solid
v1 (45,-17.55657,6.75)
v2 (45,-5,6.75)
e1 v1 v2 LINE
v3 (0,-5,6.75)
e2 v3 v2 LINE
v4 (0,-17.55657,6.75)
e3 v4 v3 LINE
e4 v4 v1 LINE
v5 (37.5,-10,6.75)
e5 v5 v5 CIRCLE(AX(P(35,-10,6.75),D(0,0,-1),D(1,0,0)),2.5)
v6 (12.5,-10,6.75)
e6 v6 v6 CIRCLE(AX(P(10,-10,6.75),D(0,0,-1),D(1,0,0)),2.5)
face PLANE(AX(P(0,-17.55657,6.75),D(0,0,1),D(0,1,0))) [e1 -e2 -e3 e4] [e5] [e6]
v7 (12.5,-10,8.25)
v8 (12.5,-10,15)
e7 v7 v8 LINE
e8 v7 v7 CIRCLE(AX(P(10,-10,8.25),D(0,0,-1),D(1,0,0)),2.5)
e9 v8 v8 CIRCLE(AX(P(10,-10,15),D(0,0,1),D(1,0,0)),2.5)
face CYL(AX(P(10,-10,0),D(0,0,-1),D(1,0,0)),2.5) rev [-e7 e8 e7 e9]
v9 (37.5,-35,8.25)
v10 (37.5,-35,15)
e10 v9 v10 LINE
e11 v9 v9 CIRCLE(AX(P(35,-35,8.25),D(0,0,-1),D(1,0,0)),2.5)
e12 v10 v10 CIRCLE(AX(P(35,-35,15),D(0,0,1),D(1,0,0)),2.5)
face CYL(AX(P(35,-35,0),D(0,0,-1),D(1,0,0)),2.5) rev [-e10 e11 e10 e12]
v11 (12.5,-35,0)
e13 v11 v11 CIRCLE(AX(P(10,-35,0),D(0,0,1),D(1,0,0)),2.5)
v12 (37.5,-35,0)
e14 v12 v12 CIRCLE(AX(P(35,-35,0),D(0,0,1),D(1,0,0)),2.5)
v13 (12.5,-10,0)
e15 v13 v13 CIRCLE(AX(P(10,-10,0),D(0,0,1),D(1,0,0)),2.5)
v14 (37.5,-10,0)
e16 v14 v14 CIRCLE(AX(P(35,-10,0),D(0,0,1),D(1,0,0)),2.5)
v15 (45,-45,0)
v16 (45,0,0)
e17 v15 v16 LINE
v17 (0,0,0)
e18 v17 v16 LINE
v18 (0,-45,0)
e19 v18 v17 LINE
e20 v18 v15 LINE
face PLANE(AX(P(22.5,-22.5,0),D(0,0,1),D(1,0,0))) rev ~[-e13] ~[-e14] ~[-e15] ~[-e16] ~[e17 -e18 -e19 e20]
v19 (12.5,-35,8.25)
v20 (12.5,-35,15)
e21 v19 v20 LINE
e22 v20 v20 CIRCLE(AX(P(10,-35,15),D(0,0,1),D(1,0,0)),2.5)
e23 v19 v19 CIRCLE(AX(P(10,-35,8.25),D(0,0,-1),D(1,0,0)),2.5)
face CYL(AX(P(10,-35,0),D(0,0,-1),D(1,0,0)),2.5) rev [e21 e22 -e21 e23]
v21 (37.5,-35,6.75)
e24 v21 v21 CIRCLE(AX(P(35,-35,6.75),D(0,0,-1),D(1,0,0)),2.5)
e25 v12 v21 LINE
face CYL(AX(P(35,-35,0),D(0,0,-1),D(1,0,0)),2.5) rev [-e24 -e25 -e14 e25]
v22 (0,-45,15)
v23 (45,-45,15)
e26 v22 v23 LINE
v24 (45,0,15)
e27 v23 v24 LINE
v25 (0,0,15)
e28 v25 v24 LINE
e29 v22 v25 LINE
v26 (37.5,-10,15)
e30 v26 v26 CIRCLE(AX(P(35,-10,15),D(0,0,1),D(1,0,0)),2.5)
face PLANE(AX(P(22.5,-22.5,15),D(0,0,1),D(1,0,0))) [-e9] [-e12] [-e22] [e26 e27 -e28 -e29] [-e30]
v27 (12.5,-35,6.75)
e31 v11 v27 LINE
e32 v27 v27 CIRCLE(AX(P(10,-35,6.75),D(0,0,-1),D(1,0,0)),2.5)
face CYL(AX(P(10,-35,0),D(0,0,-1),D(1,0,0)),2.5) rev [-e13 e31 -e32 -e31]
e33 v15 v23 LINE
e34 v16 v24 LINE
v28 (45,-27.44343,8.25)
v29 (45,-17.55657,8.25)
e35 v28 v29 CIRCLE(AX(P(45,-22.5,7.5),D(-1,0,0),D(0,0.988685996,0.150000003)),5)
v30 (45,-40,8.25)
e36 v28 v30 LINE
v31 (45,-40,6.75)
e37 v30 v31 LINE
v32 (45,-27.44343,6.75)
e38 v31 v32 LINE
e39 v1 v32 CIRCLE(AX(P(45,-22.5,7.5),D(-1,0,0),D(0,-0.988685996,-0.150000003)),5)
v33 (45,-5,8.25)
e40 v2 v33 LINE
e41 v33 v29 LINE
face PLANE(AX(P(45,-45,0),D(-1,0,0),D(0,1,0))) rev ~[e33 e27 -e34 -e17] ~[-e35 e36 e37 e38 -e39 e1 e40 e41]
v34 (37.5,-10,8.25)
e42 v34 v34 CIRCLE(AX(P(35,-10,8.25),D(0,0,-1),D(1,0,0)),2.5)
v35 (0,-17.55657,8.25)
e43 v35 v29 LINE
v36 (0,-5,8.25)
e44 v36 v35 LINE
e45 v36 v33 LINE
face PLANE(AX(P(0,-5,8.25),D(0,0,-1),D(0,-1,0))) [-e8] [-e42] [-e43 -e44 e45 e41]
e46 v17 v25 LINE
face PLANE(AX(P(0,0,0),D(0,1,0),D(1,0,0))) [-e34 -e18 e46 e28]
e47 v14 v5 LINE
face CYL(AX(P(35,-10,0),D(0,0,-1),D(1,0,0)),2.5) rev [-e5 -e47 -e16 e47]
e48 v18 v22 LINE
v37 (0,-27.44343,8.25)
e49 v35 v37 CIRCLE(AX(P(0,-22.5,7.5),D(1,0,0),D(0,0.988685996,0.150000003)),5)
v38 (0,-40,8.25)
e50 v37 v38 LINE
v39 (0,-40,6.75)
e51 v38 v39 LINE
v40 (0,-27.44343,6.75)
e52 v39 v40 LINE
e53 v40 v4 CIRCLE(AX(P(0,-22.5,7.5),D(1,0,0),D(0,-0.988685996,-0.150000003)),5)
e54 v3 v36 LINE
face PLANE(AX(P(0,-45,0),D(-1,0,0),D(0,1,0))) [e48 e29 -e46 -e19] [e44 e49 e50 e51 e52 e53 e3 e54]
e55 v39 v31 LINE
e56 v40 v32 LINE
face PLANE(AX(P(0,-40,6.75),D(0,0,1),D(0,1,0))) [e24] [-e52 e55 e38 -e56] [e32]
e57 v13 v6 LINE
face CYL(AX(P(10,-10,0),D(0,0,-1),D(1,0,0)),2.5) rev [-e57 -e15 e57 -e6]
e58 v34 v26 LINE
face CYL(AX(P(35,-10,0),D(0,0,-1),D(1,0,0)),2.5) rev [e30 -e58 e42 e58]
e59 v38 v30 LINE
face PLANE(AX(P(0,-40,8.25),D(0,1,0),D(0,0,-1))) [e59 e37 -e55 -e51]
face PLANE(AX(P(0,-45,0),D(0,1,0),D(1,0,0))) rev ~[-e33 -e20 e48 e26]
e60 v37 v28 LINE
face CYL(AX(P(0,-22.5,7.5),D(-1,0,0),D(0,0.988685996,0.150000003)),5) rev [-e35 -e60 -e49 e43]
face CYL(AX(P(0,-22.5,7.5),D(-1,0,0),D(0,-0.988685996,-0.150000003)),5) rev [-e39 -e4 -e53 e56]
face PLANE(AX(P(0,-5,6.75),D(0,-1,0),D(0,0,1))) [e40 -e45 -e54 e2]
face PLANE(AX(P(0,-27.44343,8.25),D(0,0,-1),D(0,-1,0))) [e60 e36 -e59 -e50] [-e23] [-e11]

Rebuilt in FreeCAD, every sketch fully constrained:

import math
import FreeCAD as App
import Part
import Sketcher
from FreeCAD import Vector
Q = App.Units.Quantity

doc = App.newDocument("Part")
params = doc.addObject("Spreadsheet::Sheet", "Params")
for row, (alias, value) in enumerate([
    ("sketch1_diameter", "5 mm"),
    ("sketch1_width", "45 mm"),
    ("pad1_length", "15 mm"),
    ("sketch2_radius", "5 mm"),
    ("sketch2_height", "1.5 mm"),
    ("pocket1_length", "50 mm"),
], start=1):
    params.set(f"A{row}", alias)
    params.set(f"B{row}", "=" + value)
    params.setAlias(f"B{row}", alias)

body = doc.addObject("PartDesign::Body", "Body")

sketch1 = doc.addObject("Sketcher::SketchObject", "Sketch")
body.addObject(sketch1)
sketch1.AttachmentSupport = (doc.XY_Plane, [""])
sketch1.MapMode = "FlatFace"
sketch1.addGeometry([
    Part.LineSegment(Vector(0, 0, 0), Vector(0, -45, 0)),
    Part.LineSegment(Vector(0, -45, 0), Vector(45, -45, 0)),
    Part.LineSegment(Vector(45, -45, 0), Vector(45, 0, 0)),
    Part.LineSegment(Vector(45, 0, 0), Vector(0, 0, 0)),
    Part.Circle(Vector(10, -35, 0), Vector(0, 0, 1), 2.5),
    Part.Circle(Vector(35, -35, 0), Vector(0, 0, 1), 2.5),
    Part.Circle(Vector(10, -10, 0), Vector(0, 0, 1), 2.5),
    Part.Circle(Vector(35, -10, 0), Vector(0, 0, 1), 2.5),
], False)
sketch1.addConstraint([
    Sketcher.Constraint("Coincident", 0, 2, 1, 1),
    Sketcher.Constraint("Coincident", 1, 2, 2, 1),
    Sketcher.Constraint("Coincident", 2, 2, 3, 1),
    Sketcher.Constraint("Coincident", 3, 2, 0, 1),
    Sketcher.Constraint("Vertical", 0),
    Sketcher.Constraint("Horizontal", 1),
    Sketcher.Constraint("Vertical", 2),
    Sketcher.Constraint("Horizontal", 3),
    Sketcher.Constraint("Coincident", 3, 2, -1, 1),
    Sketcher.Constraint("Equal", 4, 5),
    Sketcher.Constraint("Equal", 5, 6),
    Sketcher.Constraint("Equal", 6, 7),
    Sketcher.Constraint("Horizontal", 4, 3, 5, 3),
    Sketcher.Constraint("Horizontal", 6, 3, 7, 3),
    Sketcher.Constraint("Vertical", 4, 3, 6, 3),
    Sketcher.Constraint("Vertical", 5, 3, 7, 3),
    Sketcher.Constraint("Equal", 3, 0),
    Sketcher.Constraint("Diameter", 4, Q("5 mm")),
    Sketcher.Constraint("DistanceX", 1, 1, 1, 2, Q("45 mm")),
    Sketcher.Constraint("DistanceX", -1, 1, 4, 3, Q("10 mm")),
    Sketcher.Constraint("DistanceY", 4, 3, -1, 1, Q("35 mm")),
    Sketcher.Constraint("DistanceX", -1, 1, 5, 3, Q("35 mm")),
    Sketcher.Constraint("DistanceY", 6, 3, -1, 1, Q("10 mm")),
])
sketch1.setExpression("Constraints[17]", "Params.sketch1_diameter")
sketch1.setExpression("Constraints[18]", "Params.sketch1_width")
pad1 = doc.addObject("PartDesign::Pad", "Pad")
body.addObject(pad1)
pad1.Profile = sketch1
pad1.setExpression("Length", "Params.pad1_length")

sketch2 = doc.addObject("Sketcher::SketchObject", "Sketch001")
body.addObject(sketch2)
sketch2.AttachmentSupport = (doc.YZ_Plane, [""])
sketch2.MapMode = "FlatFace"
sketch2.addGeometry([
    Part.LineSegment(Vector(-17.55657, 6.75, 0), Vector(-5, 6.75, 0)),
    Part.LineSegment(Vector(-5, 6.75, 0), Vector(-5, 8.25, 0)),
    Part.LineSegment(Vector(-5, 8.25, 0), Vector(-17.55657, 8.25, 0)),
    Part.ArcOfCircle(Part.Circle(Vector(-22.5, 7.5, 0), Vector(0, 0, 1), 5), math.radians(8.626927), math.radians(171.373073)),
    Part.LineSegment(Vector(-27.44343, 8.25, 0), Vector(-40, 8.25, 0)),
    Part.LineSegment(Vector(-40, 8.25, 0), Vector(-40, 6.75, 0)),
    Part.LineSegment(Vector(-40, 6.75, 0), Vector(-27.44343, 6.75, 0)),
    Part.ArcOfCircle(Part.Circle(Vector(-22.5, 7.5, 0), Vector(0, 0, 1), 5), math.radians(-171.373073), math.radians(-8.626927)),
], False)
sketch2.addConstraint([
    Sketcher.Constraint("Coincident", 0, 2, 1, 1),
    Sketcher.Constraint("Coincident", 1, 2, 2, 1),
    Sketcher.Constraint("Coincident", 2, 2, 3, 1),
    Sketcher.Constraint("Coincident", 3, 2, 4, 1),
    Sketcher.Constraint("Coincident", 4, 2, 5, 1),
    Sketcher.Constraint("Coincident", 5, 2, 6, 1),
    Sketcher.Constraint("Coincident", 6, 2, 7, 1),
    Sketcher.Constraint("Coincident", 7, 2, 0, 1),
    Sketcher.Constraint("Horizontal", 0),
    Sketcher.Constraint("Vertical", 1),
    Sketcher.Constraint("Horizontal", 2),
    Sketcher.Constraint("Horizontal", 4),
    Sketcher.Constraint("Vertical", 5),
    Sketcher.Constraint("Horizontal", 6),
    Sketcher.Constraint("Coincident", 7, 3, 3, 3),
    Sketcher.Constraint("Equal", 3, 7),
    Sketcher.Constraint("Horizontal", 2, 2, 3, 2),
    Sketcher.Constraint("Horizontal", 0, 2, 5, 2),
    Sketcher.Constraint("Vertical", 3, 2, 6, 2),
    Sketcher.Constraint("Equal", 2, 4),
    Sketcher.Constraint("Radius", 3, Q("5 mm")),
    Sketcher.Constraint("DistanceY", 1, 1, 1, 2, Q("1.5 mm")),
    Sketcher.Constraint("DistanceX", 0, 2, -1, 1, Q("5 mm")),
    Sketcher.Constraint("DistanceX", 4, 2, -1, 1, Q("40 mm")),
    Sketcher.Constraint("DistanceY", -1, 1, 3, 3, Q("7.5 mm")),
])
sketch2.setExpression("Constraints[20]", "Params.sketch2_radius")
sketch2.setExpression("Constraints[21]", "Params.sketch2_height")
pocket1 = doc.addObject("PartDesign::Pocket", "Pocket")
body.addObject(pocket1)
pocket1.Profile = sketch2
pocket1.setExpression("Length", "Params.pocket1_length")
pocket1.Reversed = True

doc.recompute()
